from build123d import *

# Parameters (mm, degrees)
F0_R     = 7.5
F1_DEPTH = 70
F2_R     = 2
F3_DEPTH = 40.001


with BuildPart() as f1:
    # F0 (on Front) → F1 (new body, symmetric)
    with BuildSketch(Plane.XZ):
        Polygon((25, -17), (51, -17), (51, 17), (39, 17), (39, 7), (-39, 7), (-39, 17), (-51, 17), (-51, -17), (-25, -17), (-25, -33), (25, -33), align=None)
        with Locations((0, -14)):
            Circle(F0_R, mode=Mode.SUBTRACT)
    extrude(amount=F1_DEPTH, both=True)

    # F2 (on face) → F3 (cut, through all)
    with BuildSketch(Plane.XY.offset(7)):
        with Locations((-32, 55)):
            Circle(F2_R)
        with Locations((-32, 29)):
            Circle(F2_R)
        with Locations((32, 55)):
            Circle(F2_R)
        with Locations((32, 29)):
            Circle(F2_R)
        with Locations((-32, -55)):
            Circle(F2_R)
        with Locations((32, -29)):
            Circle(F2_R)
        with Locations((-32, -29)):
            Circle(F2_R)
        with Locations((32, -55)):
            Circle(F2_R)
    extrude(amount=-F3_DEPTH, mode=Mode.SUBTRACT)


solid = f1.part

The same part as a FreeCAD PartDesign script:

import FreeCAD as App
import Part
import Sketcher
Q = App.Units.Quantity


def add_polygon(sketch, points):
    """Adds a closed chain of lines whose ends are joined by coincident constraints."""
    first, n = sketch.GeometryCount, len(points)
    for a, b in zip(points, points[1:] + points[:1]):
        sketch.addGeometry(Part.LineSegment(App.Vector(*a, 0), App.Vector(*b, 0)), False)
    for i in range(n):
        sketch.addConstraint(Sketcher.Constraint("Coincident", first + i, 2, first + (i + 1) % n, 1))

doc = App.newDocument("Part")
params = doc.addObject("Spreadsheet::Sheet", "Params")
for row, (alias, value) in enumerate([
    ("sketch1_diameter", "15 mm"),
    ("sketch1_width", "26 mm"),
    ("sketch1_width2", "12 mm"),
    ("sketch1_width3", "78 mm"),
    ("sketch1_height", "34 mm"),
    ("pad1_length", "140 mm"),
    ("sketch2_diameter", "4 mm"),
], start=1):
    params.set(f"A{row}", alias)
    params.set(f"B{row}", "=" + value)
    params.setAlias(f"B{row}", alias)

body = doc.addObject("PartDesign::Body", "Body")

# Sketch on XZ plane
sketch1 = body.newObject("Sketcher::SketchObject", "Sketch")
sketch1.AttachmentSupport = (doc.getObject("XZ_Plane"), [""])
sketch1.MapMode = "FlatFace"
add_polygon(sketch1, [(25, -17), (51, -17), (51, 17), (39, 17), (39, 7), (-39, 7), (-39, 17), (-51, 17), (-51, -17), (-25, -17), (-25, -33), (25, -33)])  # lines 0-11
sketch1.addGeometry(Part.Circle(App.Vector(0, -14, 0), App.Vector(0, 0, 1), 8), False)  # 12
sketch1.addConstraint(Sketcher.Constraint("Horizontal", 0))
sketch1.addConstraint(Sketcher.Constraint("Vertical", 1))
sketch1.addConstraint(Sketcher.Constraint("Horizontal", 2))
sketch1.addConstraint(Sketcher.Constraint("Vertical", 3))
sketch1.addConstraint(Sketcher.Constraint("Horizontal", 4))
sketch1.addConstraint(Sketcher.Constraint("Vertical", 5))
sketch1.addConstraint(Sketcher.Constraint("Horizontal", 6))
sketch1.addConstraint(Sketcher.Constraint("Vertical", 7))
sketch1.addConstraint(Sketcher.Constraint("Horizontal", 8))
sketch1.addConstraint(Sketcher.Constraint("Vertical", 9))
sketch1.addConstraint(Sketcher.Constraint("Horizontal", 10))
sketch1.addConstraint(Sketcher.Constraint("Vertical", 11))
sketch1.addConstraint(Sketcher.Constraint("Symmetric", 0, 2, 6, 2, -1, 1))
sketch1.addConstraint(Sketcher.Constraint("Symmetric", 2, 2, 5, 2, -2))
sketch1.addConstraint(Sketcher.Constraint("Symmetric", 8, 2, 11, 2, -2))
sketch1.addConstraint(Sketcher.Constraint("PointOnObject", 12, 3, -2))
sketch1.addConstraint(Sketcher.Constraint("Diameter", 12, Q("15 mm")))
sketch1.addConstraint(Sketcher.Constraint("DistanceX", 0, 1, 0, 2, Q("26 mm")))
sketch1.addConstraint(Sketcher.Constraint("DistanceX", 2, 2, 2, 1, Q("12 mm")))
sketch1.addConstraint(Sketcher.Constraint("DistanceX", 4, 2, 4, 1, Q("78 mm")))
sketch1.addConstraint(Sketcher.Constraint("DistanceY", 1, 1, 1, 2, Q("34 mm")))
sketch1.addConstraint(Sketcher.Constraint("DistanceY", 3, 2, 3, 1, Q("10 mm")))
sketch1.addConstraint(Sketcher.Constraint("DistanceY", 9, 2, 9, 1, Q("16 mm")))
sketch1.addConstraint(Sketcher.Constraint("DistanceY", 12, 3, -1, 1, Q("14 mm")))
sketch1.setExpression("Constraints[28]", "Params.sketch1_diameter")
sketch1.setExpression("Constraints[29]", "Params.sketch1_width")
sketch1.setExpression("Constraints[30]", "Params.sketch1_width2")
sketch1.setExpression("Constraints[31]", "Params.sketch1_width3")
sketch1.setExpression("Constraints[32]", "Params.sketch1_height")
pad1 = body.newObject("PartDesign::Pad", "Pad")
pad1.Profile = sketch1
pad1.setExpression("Length", "Params.pad1_length")
pad1.Midplane = True

# Sketch on XY plane
sketch2 = body.newObject("Sketcher::SketchObject", "Sketch001")
sketch2.AttachmentSupport = (doc.getObject("XY_Plane"), [""])
sketch2.MapMode = "FlatFace"
sketch2.AttachmentOffset = App.Placement(App.Vector(0, 0, 7), App.Rotation())
sketch2.addGeometry(Part.Circle(App.Vector(-32, 55, 0), App.Vector(0, 0, 1), 2), False)
sketch2.addGeometry(Part.Circle(App.Vector(-32, 29, 0), App.Vector(0, 0, 1), 2), False)
sketch2.addGeometry(Part.Circle(App.Vector(32, 55, 0), App.Vector(0, 0, 1), 2), False)
sketch2.addGeometry(Part.Circle(App.Vector(32, 29, 0), App.Vector(0, 0, 1), 2), False)
sketch2.addGeometry(Part.Circle(App.Vector(-32, -55, 0), App.Vector(0, 0, 1), 2), False)
sketch2.addGeometry(Part.Circle(App.Vector(32, -29, 0), App.Vector(0, 0, 1), 2), False)
sketch2.addGeometry(Part.Circle(App.Vector(-32, -29, 0), App.Vector(0, 0, 1), 2), False)
sketch2.addGeometry(Part.Circle(App.Vector(32, -55, 0), App.Vector(0, 0, 1), 2), False)
sketch2.addConstraint(Sketcher.Constraint("Equal", 0, 1))
sketch2.addConstraint(Sketcher.Constraint("Equal", 1, 2))
sketch2.addConstraint(Sketcher.Constraint("Equal", 2, 3))
sketch2.addConstraint(Sketcher.Constraint("Equal", 3, 4))
sketch2.addConstraint(Sketcher.Constraint("Equal", 4, 5))
sketch2.addConstraint(Sketcher.Constraint("Equal", 5, 6))
sketch2.addConstraint(Sketcher.Constraint("Equal", 6, 7))
sketch2.addConstraint(Sketcher.Constraint("Symmetric", 2, 3, 4, 3, -1, 1))
sketch2.addConstraint(Sketcher.Constraint("Symmetric", 1, 3, 5, 3, -1, 1))
sketch2.addConstraint(Sketcher.Constraint("Symmetric", 3, 3, 6, 3, -1, 1))
sketch2.addConstraint(Sketcher.Constraint("Symmetric", 0, 3, 7, 3, -1, 1))
sketch2.addConstraint(Sketcher.Constraint("Symmetric", 0, 3, 2, 3, -2))
sketch2.addConstraint(Sketcher.Constraint("Symmetric", 1, 3, 3, 3, -2))
sketch2.addConstraint(Sketcher.Constraint("Vertical", 0, 3, 1, 3))
sketch2.addConstraint(Sketcher.Constraint("Diameter", 0, Q("4 mm")))
sketch2.addConstraint(Sketcher.Constraint("DistanceX", 0, 3, -1, 1, Q("32 mm")))
sketch2.addConstraint(Sketcher.Constraint("DistanceY", -1, 1, 0, 3, Q("55 mm")))
sketch2.addConstraint(Sketcher.Constraint("DistanceY", -1, 1, 1, 3, Q("29 mm")))
sketch2.setExpression("Constraints[14]", "Params.sketch2_diameter")
pocket1 = body.newObject("PartDesign::Pocket", "Pocket")
pocket1.Profile = sketch2
pocket1.Type = "ThroughAll"

doc.recompute()
